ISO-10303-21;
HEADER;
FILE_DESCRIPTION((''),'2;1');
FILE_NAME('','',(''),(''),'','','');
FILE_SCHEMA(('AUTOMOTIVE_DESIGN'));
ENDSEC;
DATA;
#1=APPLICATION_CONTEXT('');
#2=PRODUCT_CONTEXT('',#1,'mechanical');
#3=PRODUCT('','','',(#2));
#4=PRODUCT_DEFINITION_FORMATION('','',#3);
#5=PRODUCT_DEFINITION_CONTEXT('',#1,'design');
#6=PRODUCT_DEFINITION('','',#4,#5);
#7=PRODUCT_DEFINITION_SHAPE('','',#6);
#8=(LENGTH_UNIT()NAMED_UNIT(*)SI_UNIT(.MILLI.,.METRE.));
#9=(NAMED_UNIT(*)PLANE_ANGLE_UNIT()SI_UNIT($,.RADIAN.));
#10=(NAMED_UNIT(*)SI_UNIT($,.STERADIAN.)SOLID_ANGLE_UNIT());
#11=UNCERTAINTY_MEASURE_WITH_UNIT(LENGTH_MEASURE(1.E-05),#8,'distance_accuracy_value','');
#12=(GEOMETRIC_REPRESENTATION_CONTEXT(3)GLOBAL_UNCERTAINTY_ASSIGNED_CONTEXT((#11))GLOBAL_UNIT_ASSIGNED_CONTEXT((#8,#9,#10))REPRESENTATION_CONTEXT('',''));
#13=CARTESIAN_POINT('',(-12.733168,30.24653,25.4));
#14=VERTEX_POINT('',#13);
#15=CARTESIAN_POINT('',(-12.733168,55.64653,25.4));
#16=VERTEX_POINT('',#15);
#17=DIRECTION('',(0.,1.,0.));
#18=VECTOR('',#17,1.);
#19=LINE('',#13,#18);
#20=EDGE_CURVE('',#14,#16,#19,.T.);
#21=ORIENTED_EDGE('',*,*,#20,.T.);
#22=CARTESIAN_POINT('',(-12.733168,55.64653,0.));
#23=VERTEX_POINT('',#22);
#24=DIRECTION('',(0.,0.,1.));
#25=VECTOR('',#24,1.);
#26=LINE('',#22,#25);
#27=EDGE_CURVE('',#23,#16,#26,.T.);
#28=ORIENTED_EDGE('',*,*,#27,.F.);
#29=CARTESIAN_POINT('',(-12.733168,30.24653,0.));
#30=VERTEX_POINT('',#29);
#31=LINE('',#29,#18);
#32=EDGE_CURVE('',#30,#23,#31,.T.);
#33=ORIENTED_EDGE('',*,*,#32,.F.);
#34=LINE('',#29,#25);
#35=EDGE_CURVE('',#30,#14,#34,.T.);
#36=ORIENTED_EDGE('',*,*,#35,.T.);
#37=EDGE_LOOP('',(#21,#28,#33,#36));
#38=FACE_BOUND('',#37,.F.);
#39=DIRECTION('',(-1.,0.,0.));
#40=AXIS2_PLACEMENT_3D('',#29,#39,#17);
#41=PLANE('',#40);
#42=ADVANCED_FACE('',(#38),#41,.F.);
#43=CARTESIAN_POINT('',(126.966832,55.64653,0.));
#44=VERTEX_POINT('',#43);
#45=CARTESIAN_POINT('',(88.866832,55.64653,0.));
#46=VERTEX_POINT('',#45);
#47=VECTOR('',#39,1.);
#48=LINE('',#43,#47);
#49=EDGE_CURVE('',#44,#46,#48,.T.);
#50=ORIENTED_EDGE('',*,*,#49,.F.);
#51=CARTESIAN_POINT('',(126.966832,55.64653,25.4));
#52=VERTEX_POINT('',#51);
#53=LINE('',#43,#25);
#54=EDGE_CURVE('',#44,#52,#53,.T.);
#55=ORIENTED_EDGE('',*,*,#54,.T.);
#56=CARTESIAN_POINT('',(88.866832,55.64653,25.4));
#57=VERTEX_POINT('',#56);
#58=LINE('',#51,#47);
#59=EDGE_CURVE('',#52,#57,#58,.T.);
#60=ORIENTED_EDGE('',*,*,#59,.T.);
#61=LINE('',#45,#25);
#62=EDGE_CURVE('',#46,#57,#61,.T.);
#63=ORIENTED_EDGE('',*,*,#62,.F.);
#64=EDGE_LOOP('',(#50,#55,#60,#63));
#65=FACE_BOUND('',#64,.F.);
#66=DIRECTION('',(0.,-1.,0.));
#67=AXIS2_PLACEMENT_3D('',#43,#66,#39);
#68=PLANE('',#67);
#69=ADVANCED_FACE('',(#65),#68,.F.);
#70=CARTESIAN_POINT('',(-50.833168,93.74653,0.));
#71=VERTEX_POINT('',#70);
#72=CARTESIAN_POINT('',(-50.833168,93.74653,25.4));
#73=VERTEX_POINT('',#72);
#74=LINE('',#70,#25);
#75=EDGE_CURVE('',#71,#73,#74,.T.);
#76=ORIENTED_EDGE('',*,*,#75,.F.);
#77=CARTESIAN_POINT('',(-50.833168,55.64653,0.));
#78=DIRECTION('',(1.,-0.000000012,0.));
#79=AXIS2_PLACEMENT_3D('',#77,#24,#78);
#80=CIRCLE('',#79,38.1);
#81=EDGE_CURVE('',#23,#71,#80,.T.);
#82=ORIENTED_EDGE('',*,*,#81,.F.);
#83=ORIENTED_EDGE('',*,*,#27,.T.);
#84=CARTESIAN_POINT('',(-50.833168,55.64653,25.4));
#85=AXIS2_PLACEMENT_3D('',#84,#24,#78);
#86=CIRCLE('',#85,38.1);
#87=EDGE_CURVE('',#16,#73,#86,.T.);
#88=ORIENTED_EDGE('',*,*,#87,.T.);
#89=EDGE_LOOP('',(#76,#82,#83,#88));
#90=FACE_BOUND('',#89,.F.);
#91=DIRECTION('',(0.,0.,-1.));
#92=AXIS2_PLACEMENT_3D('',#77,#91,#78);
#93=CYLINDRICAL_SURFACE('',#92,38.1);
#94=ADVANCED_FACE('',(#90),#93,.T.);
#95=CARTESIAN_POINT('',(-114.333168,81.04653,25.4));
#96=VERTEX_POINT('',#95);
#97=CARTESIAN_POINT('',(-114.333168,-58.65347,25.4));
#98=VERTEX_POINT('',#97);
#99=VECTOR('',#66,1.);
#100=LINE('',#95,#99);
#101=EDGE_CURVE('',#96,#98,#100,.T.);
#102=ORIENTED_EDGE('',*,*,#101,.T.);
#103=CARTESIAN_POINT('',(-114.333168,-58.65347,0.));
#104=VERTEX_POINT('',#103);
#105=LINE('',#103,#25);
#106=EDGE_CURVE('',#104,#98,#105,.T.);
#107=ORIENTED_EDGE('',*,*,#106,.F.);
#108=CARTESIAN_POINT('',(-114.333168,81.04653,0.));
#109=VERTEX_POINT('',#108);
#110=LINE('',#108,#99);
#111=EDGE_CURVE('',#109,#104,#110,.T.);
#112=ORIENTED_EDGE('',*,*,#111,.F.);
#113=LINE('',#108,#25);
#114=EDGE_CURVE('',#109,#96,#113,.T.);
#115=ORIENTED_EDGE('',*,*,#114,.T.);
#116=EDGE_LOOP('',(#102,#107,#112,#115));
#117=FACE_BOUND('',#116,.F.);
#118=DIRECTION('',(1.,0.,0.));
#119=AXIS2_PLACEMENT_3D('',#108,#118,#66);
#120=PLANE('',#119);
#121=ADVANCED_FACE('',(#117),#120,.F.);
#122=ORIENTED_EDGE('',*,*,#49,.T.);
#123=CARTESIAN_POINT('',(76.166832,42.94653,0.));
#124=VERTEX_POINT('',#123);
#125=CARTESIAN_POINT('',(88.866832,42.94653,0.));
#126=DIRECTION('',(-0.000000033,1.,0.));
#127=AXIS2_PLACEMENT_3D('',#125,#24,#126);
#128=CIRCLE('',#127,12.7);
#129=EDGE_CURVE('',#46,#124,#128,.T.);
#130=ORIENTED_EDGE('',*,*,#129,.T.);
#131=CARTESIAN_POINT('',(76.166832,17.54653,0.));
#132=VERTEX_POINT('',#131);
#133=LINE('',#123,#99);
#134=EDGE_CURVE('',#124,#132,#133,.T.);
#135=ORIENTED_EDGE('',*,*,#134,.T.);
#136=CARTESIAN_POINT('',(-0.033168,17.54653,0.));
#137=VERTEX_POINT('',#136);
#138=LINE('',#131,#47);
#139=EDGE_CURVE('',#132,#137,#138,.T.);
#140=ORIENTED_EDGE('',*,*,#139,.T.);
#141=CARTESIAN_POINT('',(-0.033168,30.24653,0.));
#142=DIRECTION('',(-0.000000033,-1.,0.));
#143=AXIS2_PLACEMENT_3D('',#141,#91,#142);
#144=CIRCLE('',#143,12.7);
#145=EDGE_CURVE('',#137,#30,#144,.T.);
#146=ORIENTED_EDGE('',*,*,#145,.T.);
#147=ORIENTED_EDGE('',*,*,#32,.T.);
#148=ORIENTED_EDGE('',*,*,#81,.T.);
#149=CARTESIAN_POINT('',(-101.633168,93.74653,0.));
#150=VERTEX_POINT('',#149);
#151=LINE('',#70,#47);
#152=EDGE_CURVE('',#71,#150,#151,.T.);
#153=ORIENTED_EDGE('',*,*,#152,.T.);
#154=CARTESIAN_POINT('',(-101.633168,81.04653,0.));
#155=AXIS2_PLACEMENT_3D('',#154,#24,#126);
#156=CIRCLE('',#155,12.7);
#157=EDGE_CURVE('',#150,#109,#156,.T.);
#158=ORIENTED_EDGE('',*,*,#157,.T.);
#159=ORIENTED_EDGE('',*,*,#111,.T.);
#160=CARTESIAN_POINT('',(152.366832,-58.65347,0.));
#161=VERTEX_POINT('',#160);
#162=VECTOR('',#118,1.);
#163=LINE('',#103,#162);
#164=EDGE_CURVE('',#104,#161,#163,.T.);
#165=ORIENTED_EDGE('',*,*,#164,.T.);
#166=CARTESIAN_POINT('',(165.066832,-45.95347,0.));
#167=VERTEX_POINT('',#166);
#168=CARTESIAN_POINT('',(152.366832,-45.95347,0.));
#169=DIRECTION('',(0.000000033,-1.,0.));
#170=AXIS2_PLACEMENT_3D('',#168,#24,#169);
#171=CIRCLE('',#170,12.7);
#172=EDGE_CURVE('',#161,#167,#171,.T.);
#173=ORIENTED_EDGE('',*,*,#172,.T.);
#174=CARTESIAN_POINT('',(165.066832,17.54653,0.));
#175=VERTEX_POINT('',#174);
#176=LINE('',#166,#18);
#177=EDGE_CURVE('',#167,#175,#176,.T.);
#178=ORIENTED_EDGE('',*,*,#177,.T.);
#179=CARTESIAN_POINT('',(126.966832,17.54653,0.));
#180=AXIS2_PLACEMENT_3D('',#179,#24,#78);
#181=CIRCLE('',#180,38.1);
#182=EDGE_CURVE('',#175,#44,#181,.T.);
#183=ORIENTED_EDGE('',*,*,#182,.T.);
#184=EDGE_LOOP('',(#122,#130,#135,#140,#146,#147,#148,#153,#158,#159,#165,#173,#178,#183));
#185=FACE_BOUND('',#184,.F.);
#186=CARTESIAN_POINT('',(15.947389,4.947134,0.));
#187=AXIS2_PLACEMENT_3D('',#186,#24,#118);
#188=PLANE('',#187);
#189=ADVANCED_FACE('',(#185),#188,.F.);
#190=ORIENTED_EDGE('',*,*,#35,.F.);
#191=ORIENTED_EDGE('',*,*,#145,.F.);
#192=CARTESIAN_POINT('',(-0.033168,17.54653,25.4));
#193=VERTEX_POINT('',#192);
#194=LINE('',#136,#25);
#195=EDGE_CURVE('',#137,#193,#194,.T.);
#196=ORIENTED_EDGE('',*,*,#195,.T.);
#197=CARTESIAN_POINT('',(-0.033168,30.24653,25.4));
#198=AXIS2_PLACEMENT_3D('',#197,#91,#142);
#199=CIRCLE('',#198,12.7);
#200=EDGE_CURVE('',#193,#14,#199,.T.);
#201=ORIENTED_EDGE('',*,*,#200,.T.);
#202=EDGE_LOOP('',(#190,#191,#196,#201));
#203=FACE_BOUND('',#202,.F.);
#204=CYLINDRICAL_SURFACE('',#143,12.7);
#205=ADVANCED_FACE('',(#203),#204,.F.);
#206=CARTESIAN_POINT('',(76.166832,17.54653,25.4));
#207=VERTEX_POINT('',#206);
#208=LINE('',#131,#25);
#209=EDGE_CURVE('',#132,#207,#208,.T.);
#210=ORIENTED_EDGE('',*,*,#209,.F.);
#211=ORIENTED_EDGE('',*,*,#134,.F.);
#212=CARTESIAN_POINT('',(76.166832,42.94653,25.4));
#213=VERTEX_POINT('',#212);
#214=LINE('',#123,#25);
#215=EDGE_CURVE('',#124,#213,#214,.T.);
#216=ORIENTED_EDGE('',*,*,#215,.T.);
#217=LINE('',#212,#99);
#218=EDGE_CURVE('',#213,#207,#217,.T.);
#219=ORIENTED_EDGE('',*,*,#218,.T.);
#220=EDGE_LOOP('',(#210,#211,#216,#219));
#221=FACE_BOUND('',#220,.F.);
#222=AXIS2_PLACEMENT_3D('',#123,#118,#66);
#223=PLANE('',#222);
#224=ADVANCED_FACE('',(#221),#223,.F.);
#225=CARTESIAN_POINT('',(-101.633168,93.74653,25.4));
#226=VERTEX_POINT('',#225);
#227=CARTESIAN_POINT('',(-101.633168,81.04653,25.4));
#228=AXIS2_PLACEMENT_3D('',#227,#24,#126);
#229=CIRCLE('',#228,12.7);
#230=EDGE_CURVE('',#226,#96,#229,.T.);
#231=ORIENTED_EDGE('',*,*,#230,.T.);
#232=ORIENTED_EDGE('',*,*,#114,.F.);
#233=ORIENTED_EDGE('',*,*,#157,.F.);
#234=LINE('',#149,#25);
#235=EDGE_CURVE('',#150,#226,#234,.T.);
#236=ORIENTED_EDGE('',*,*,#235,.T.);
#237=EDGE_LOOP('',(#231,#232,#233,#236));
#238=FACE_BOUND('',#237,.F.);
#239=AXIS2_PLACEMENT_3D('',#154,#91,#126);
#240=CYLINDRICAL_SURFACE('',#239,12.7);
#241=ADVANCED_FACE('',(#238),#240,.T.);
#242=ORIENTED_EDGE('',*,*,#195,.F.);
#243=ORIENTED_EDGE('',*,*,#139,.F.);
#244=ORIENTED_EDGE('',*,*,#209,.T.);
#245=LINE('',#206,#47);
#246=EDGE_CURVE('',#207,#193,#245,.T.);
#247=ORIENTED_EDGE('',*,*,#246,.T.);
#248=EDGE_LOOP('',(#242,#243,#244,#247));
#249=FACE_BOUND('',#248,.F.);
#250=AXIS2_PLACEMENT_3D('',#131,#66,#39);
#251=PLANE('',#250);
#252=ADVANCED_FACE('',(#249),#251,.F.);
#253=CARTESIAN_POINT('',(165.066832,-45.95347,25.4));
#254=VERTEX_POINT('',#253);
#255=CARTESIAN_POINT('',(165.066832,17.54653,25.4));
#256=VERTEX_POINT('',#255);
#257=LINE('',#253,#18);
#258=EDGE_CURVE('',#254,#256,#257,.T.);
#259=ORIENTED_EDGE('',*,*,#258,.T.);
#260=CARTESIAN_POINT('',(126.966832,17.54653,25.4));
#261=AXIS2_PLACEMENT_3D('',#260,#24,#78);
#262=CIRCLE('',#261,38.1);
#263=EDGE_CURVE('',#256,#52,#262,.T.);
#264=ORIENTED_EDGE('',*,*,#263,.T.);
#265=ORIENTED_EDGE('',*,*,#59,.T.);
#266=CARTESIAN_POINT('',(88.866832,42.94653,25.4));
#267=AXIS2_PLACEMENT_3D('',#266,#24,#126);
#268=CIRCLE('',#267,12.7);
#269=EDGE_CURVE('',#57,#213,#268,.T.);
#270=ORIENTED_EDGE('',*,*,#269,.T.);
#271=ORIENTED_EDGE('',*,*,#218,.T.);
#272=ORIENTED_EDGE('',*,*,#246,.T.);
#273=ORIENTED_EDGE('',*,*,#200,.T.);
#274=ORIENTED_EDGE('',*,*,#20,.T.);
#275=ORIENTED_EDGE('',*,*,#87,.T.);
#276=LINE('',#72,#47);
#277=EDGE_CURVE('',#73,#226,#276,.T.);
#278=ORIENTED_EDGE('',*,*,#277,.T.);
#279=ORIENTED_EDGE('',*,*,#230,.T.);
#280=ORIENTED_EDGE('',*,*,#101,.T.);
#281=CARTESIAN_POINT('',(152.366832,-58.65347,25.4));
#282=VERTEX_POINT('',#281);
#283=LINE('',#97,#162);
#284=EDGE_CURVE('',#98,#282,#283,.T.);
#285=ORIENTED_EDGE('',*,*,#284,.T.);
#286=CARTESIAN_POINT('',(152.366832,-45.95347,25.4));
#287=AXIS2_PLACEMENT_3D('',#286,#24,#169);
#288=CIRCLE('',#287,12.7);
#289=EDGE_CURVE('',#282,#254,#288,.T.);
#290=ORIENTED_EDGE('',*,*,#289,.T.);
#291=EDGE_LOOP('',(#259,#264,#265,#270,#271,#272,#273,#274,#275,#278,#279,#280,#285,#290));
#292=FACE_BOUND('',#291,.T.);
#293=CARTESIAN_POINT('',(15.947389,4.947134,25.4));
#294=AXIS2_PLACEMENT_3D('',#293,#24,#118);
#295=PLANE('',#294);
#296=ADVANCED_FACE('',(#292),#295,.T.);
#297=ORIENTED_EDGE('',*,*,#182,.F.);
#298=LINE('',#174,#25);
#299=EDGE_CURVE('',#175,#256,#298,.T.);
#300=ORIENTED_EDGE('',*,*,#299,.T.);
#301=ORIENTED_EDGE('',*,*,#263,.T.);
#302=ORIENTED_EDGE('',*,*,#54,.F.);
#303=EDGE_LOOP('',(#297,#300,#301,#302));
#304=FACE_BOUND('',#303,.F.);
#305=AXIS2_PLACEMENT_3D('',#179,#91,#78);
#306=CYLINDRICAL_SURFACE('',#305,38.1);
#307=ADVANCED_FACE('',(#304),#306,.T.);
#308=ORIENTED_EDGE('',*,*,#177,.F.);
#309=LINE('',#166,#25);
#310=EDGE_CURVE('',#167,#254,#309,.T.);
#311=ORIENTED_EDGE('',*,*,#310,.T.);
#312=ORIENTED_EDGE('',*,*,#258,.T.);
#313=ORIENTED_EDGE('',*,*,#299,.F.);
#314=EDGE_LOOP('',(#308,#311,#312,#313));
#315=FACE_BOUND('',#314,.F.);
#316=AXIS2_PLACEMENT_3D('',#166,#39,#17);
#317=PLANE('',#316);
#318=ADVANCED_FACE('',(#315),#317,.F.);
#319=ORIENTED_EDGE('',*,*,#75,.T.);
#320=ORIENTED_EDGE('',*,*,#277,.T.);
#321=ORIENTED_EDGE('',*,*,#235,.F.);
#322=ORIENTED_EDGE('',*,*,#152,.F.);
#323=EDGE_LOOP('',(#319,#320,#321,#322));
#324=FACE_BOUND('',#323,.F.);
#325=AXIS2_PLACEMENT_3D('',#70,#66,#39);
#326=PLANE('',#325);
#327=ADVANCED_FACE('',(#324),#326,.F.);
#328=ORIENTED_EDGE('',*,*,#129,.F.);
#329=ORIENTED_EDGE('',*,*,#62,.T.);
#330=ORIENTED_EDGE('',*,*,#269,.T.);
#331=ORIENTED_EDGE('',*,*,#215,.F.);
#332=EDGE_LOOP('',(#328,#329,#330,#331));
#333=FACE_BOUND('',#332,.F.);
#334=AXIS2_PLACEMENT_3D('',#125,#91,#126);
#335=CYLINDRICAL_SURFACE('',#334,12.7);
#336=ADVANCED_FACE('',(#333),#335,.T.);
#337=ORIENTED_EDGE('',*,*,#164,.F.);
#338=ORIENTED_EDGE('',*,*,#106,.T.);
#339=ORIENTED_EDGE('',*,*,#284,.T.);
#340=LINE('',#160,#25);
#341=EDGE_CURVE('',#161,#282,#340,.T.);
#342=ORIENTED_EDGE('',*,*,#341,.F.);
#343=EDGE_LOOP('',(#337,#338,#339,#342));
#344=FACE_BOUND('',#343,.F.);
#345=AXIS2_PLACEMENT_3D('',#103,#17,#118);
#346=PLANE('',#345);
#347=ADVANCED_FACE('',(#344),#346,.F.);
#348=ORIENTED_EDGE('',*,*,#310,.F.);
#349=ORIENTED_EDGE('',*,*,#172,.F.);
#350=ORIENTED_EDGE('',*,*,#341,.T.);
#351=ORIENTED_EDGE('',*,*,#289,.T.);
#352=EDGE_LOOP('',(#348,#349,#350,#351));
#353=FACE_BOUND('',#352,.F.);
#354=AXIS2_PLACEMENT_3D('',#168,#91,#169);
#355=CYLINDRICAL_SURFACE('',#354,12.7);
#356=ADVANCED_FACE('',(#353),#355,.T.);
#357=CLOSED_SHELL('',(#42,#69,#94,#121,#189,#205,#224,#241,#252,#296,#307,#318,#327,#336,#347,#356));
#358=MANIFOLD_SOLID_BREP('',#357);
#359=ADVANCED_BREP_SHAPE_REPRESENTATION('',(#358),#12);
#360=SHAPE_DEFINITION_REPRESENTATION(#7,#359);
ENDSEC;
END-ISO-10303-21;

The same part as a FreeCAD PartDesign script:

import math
import FreeCAD as App
import Part
import Sketcher

V = App.Vector
Q = App.Units.Quantity

doc = App.newDocument("Part")
body = doc.addObject("PartDesign::Body", "Body")

sketch1 = body.newObject("Sketcher::SketchObject", "Sketch")
sketch1.AttachmentSupport = (doc.getObject("XY_Plane"), [""])
sketch1.MapMode = "FlatFace"
sketch1.addGeometry(Part.LineSegment(V(-114.333168, 81.04653, 0), V(-114.333168, -58.65347, 0)), False)
sketch1.addGeometry(Part.LineSegment(V(-114.333168, -58.65347, 0), V(152.366832, -58.65347, 0)), False)
sketch1.addGeometry(Part.ArcOfCircle(Part.Circle(V(152.366832, -45.95347, 0), V(0, 0, 1), 12.7), math.radians(-89.999998), math.radians(-0.000002)), False)
sketch1.addGeometry(Part.LineSegment(V(165.066832, -45.95347, 0), V(165.066832, 17.54653, 0)), False)
sketch1.addGeometry(Part.ArcOfCircle(Part.Circle(V(126.966832, 17.54653, 0), V(0, 0, 1), 38.1), math.radians(-0.000001), math.radians(90.000001)), False)
sketch1.addGeometry(Part.LineSegment(V(126.966832, 55.64653, 0), V(88.866832, 55.64653, 0)), False)
sketch1.addGeometry(Part.ArcOfCircle(Part.Circle(V(88.866832, 42.94653, 0), V(0, 0, 1), 12.7), math.radians(90.000002), math.radians(179.999998)), False)
sketch1.addGeometry(Part.LineSegment(V(76.166832, 42.94653, 0), V(76.166832, 17.54653, 0)), False)
sketch1.addGeometry(Part.LineSegment(V(76.166832, 17.54653, 0), V(-0.033168, 17.54653, 0)), False)
sketch1.addGeometry(Part.ArcOfCircle(Part.Circle(V(-0.033168, 30.24653, 0), V(0, 0, 1), 12.7), math.radians(-179.999998), math.radians(-90.000002)), False)
sketch1.addGeometry(Part.LineSegment(V(-12.733168, 30.24653, 0), V(-12.733168, 55.64653, 0)), False)
sketch1.addGeometry(Part.ArcOfCircle(Part.Circle(V(-50.833168, 55.64653, 0), V(0, 0, 1), 38.1), math.radians(-0.000001), math.radians(90.000001)), False)
sketch1.addGeometry(Part.LineSegment(V(-50.833168, 93.74653, 0), V(-101.633168, 93.74653, 0)), False)
sketch1.addGeometry(Part.ArcOfCircle(Part.Circle(V(-101.633168, 81.04653, 0), V(0, 0, 1), 12.7), math.radians(90.000002), math.radians(179.999998)), False)
sketch1.addConstraint(Sketcher.Constraint("Coincident", 0, 2, 1, 1))
sketch1.addConstraint(Sketcher.Constraint("Tangent", 1, 2, 2, 1))
sketch1.addConstraint(Sketcher.Constraint("Tangent", 2, 2, 3, 1))
sketch1.addConstraint(Sketcher.Constraint("Tangent", 3, 2, 4, 1))
sketch1.addConstraint(Sketcher.Constraint("Tangent", 4, 2, 5, 1))
sketch1.addConstraint(Sketcher.Constraint("Tangent", 5, 2, 6, 1))
sketch1.addConstraint(Sketcher.Constraint("Tangent", 6, 2, 7, 1))
sketch1.addConstraint(Sketcher.Constraint("Coincident", 7, 2, 8, 1))
sketch1.addConstraint(Sketcher.Constraint("Tangent", 8, 2, 9, 2))
sketch1.addConstraint(Sketcher.Constraint("Tangent", 9, 1, 10, 1))
sketch1.addConstraint(Sketcher.Constraint("Tangent", 10, 2, 11, 1))
sketch1.addConstraint(Sketcher.Constraint("Tangent", 11, 2, 12, 1))
sketch1.addConstraint(Sketcher.Constraint("Tangent", 12, 2, 13, 1))
sketch1.addConstraint(Sketcher.Constraint("Tangent", 13, 2, 0, 1))
sketch1.addConstraint(Sketcher.Constraint("Vertical", 0))
sketch1.addConstraint(Sketcher.Constraint("Horizontal", 1))
sketch1.addConstraint(Sketcher.Constraint("Vertical", 3))
sketch1.addConstraint(Sketcher.Constraint("Horizontal", 5))
sketch1.addConstraint(Sketcher.Constraint("Vertical", 7))
sketch1.addConstraint(Sketcher.Constraint("Horizontal", 8))
sketch1.addConstraint(Sketcher.Constraint("Vertical", 10))
sketch1.addConstraint(Sketcher.Constraint("Horizontal", 12))
sketch1.addConstraint(Sketcher.Constraint("Equal", 2, 6))
sketch1.addConstraint(Sketcher.Constraint("Equal", 6, 9))
sketch1.addConstraint(Sketcher.Constraint("Equal", 4, 11))
sketch1.addConstraint(Sketcher.Constraint("Equal", 9, 13))
sketch1.addConstraint(Sketcher.Constraint("Horizontal", 11, 3, 4, 2))
sketch1.addConstraint(Sketcher.Constraint("Horizontal", 3, 2, 7, 2))
sketch1.addConstraint(Sketcher.Constraint("Radius", 2, Q("0.5 in")))
sketch1.addConstraint(Sketcher.Constraint("Radius", 4, Q("1.5 in")))
sketch1.addConstraint(Sketcher.Constraint("DistanceX", 8, 2, 8, 1, Q("3 in")))
sketch1.addConstraint(Sketcher.Constraint("DistanceX", 12, 2, 12, 1, Q("2 in")))
sketch1.addConstraint(Sketcher.Constraint("DistanceX", 1, 1, 1, 2, Q("10.5 in")))
sketch1.addConstraint(Sketcher.Constraint("DistanceY", 0, 2, 0, 1, Q("5.5 in")))
sketch1.addConstraint(Sketcher.Constraint("DistanceX", -1, 1, 2, 3, Q("152.366832 mm")))
sketch1.addConstraint(Sketcher.Constraint("DistanceY", 2, 3, -1, 1, Q("45.95347 mm")))
pad1 = body.newObject("PartDesign::Pad", "Pad")
pad1.Profile = sketch1
pad1.Length = Q("1 in")

doc.recompute()
